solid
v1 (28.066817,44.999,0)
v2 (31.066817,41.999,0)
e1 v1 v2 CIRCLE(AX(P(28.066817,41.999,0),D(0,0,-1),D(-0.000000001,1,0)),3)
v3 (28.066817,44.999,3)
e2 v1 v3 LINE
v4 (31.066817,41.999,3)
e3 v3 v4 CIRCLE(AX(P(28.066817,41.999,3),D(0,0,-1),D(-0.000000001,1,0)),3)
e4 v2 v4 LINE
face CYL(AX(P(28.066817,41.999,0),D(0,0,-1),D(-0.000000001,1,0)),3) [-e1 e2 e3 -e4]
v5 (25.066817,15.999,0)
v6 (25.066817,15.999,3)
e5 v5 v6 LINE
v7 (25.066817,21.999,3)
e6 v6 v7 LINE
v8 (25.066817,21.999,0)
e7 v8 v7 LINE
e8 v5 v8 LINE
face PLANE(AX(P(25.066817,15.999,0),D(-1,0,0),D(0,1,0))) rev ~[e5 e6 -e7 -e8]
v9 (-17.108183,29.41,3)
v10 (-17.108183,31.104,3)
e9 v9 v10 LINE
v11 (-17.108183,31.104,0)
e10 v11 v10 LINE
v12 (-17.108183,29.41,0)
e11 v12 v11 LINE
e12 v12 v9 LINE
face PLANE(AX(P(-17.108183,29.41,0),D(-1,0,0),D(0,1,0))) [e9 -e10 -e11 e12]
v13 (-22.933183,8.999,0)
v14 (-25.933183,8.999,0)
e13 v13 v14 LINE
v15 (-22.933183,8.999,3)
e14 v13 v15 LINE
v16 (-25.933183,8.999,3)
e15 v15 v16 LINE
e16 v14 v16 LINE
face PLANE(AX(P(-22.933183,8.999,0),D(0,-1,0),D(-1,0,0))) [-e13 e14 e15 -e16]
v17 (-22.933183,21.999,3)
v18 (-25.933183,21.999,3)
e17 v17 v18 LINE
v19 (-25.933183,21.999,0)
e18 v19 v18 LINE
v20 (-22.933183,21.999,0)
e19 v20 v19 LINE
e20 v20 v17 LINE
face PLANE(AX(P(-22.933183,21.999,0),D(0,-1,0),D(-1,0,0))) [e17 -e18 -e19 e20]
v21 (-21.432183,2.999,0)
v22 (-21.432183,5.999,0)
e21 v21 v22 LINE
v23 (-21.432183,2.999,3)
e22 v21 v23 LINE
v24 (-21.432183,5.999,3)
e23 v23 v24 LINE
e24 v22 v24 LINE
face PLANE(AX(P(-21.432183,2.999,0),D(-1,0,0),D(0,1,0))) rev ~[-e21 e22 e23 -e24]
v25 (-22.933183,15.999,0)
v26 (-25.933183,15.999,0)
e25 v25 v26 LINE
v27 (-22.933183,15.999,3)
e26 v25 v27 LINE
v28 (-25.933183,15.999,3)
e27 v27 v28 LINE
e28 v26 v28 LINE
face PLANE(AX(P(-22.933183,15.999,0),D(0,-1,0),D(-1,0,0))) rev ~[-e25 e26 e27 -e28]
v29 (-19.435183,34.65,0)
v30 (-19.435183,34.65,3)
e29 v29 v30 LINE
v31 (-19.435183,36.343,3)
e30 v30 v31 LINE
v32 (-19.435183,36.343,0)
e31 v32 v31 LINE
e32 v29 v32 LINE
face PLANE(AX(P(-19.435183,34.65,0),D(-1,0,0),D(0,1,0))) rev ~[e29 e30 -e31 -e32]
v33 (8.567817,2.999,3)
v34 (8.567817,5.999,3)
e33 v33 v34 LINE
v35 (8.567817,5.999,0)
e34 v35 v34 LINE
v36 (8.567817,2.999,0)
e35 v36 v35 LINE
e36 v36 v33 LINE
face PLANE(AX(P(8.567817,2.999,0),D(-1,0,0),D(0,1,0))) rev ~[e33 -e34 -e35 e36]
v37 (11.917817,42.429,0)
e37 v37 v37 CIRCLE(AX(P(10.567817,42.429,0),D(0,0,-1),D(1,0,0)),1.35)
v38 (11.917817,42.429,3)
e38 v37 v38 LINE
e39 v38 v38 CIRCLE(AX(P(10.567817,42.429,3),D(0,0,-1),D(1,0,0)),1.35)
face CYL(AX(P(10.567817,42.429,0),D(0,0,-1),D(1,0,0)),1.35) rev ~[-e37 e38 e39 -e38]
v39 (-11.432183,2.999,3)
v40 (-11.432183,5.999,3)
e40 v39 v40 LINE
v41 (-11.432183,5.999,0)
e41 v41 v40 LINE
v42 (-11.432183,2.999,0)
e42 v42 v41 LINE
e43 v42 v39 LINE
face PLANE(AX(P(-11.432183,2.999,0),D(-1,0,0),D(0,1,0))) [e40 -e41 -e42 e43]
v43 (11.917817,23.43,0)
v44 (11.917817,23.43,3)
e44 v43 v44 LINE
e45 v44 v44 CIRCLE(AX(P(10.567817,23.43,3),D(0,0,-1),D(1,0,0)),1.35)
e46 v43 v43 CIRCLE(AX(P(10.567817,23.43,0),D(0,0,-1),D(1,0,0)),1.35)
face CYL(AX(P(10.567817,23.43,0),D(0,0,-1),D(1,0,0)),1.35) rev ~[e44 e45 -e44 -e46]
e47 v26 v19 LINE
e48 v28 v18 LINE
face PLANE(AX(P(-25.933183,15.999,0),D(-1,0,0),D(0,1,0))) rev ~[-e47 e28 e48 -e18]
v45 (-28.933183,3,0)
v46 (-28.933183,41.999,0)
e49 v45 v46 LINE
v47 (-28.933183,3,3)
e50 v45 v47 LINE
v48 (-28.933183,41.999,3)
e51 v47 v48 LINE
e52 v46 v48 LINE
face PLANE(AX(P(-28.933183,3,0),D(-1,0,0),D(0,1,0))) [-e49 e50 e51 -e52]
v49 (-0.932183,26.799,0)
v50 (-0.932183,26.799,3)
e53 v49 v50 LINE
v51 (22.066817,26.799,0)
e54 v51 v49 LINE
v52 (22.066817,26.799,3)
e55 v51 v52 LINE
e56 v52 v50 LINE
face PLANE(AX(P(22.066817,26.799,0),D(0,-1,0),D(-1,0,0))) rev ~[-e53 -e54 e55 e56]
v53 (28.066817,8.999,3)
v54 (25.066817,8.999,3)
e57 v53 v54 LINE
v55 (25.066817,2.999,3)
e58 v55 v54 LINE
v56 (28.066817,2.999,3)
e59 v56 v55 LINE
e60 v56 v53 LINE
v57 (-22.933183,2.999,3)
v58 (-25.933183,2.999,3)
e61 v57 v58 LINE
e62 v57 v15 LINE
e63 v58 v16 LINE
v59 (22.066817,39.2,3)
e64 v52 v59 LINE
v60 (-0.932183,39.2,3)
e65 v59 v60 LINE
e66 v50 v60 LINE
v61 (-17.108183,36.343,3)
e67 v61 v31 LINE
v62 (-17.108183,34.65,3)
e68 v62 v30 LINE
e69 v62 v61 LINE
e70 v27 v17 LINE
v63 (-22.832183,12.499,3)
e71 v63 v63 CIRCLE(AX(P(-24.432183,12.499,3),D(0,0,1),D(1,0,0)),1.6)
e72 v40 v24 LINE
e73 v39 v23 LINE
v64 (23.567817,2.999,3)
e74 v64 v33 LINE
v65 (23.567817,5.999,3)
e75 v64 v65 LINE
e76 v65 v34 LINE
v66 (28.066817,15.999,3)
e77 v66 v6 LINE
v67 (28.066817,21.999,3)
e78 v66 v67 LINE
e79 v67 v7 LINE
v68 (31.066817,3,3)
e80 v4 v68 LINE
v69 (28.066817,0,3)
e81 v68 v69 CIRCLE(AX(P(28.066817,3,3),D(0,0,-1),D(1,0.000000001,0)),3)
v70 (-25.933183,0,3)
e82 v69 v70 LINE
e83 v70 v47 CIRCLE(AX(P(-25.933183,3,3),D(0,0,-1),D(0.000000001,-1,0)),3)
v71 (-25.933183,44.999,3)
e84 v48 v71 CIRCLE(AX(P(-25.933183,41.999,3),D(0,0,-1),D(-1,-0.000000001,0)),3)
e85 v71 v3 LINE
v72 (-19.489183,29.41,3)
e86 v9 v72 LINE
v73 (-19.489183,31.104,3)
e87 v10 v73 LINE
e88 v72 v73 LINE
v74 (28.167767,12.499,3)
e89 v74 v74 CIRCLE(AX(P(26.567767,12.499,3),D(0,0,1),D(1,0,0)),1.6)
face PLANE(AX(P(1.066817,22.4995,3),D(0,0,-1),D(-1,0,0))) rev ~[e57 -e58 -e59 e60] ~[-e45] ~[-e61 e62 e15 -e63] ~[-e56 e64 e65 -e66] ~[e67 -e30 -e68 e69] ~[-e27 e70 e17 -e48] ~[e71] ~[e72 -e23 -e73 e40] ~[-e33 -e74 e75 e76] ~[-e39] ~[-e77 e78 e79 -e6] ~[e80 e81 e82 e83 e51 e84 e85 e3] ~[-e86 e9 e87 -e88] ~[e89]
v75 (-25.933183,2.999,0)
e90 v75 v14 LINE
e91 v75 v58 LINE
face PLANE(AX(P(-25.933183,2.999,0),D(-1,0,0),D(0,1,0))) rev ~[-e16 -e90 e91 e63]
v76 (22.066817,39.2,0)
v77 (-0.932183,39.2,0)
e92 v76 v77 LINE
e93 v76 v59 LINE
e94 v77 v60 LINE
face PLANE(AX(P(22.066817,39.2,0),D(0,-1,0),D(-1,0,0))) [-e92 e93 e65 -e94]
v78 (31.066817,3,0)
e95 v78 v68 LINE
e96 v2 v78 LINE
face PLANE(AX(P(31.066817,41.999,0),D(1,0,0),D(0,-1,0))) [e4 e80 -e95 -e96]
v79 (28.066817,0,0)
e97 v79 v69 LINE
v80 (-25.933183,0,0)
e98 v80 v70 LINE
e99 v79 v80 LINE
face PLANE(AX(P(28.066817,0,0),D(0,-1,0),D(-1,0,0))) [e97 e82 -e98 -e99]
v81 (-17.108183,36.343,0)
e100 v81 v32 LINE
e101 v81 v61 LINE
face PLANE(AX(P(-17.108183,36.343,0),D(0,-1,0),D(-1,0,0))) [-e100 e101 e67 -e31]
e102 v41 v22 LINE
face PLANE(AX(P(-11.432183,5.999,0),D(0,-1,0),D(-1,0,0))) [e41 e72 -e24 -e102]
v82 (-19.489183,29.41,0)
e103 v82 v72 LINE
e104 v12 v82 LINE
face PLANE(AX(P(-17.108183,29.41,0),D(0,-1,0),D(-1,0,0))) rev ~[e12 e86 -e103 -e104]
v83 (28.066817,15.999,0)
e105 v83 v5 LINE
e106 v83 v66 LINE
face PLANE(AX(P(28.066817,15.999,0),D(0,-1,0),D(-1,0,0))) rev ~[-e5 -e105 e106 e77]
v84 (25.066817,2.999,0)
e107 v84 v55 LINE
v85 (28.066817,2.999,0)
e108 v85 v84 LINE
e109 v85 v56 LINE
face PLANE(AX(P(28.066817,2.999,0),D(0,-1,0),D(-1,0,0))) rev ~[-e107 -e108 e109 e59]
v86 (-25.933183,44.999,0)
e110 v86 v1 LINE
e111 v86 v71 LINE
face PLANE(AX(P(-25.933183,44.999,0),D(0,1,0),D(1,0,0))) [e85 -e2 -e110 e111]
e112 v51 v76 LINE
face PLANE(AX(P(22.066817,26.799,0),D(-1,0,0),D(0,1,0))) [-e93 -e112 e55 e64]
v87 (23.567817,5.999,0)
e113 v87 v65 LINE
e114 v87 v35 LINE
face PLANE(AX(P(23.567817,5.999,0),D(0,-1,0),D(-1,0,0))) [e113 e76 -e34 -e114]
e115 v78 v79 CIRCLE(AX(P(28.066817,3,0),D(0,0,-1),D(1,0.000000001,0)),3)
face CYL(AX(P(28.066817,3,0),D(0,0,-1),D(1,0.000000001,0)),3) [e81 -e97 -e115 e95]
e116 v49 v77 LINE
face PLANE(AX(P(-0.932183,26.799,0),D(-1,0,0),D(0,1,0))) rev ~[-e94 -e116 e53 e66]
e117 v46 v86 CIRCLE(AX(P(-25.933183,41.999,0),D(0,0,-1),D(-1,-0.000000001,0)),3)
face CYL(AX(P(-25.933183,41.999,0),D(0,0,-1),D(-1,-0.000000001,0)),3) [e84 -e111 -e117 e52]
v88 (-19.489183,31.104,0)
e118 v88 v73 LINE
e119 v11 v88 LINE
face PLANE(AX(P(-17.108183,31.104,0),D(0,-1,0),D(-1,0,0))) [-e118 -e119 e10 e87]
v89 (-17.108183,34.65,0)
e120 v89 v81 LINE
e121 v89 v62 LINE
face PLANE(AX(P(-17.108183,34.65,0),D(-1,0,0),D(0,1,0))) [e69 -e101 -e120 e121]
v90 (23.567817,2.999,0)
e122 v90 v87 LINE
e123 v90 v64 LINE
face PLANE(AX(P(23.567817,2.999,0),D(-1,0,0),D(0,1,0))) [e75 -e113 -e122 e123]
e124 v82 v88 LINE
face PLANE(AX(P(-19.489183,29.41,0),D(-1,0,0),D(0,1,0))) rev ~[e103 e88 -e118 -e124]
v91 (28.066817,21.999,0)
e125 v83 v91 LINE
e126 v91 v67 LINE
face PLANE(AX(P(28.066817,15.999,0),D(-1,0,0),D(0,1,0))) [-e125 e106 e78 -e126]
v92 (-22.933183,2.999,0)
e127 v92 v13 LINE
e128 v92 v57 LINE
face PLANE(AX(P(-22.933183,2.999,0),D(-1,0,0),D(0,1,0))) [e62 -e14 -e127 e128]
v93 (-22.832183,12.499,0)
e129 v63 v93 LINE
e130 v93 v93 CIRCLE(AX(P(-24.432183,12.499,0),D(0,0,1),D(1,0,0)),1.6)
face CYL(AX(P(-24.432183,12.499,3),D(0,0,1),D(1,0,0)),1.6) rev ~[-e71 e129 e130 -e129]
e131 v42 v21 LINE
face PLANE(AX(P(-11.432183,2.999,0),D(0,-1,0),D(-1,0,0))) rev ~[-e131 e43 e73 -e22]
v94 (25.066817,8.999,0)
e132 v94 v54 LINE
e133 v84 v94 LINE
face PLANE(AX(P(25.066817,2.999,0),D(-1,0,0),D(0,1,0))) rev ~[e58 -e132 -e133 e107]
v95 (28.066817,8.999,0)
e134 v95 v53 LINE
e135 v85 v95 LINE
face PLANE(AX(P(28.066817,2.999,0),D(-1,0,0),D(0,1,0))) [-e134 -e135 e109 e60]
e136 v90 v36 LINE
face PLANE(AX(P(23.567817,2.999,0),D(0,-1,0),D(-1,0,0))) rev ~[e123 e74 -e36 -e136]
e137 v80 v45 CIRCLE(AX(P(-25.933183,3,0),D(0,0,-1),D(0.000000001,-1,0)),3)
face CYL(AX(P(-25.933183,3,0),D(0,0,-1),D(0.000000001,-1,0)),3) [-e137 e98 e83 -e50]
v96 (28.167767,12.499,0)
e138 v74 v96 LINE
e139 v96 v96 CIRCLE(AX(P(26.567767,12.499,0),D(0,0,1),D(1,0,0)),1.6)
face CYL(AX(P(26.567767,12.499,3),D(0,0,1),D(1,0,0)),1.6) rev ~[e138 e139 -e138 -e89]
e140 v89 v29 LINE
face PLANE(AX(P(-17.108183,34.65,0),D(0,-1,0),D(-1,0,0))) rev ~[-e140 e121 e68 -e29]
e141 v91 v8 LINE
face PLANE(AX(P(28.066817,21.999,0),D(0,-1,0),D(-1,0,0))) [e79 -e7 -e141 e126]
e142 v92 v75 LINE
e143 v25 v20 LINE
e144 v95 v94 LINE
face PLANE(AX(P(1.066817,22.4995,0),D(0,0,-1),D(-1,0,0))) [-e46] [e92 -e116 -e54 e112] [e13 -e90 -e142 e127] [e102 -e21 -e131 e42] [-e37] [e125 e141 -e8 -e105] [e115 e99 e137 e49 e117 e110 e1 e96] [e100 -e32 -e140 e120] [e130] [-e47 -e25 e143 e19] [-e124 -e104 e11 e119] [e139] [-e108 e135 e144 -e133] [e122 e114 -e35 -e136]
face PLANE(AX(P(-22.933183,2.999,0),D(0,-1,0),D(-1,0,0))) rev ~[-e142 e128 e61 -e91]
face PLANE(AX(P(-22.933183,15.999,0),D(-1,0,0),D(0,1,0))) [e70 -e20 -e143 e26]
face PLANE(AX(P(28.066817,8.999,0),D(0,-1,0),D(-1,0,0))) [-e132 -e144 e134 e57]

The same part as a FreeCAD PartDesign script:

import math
import FreeCAD as App
import Part
import Sketcher
from FreeCAD import Vector
Q = App.Units.Quantity


def add_polygon(sketch, points):
    """Adds a closed chain of lines whose ends are joined by coincident constraints."""
    first, n = sketch.GeometryCount, len(points)
    for a, b in zip(points, points[1:] + points[:1]):
        sketch.addGeometry(Part.LineSegment(App.Vector(*a, 0), App.Vector(*b, 0)), False)
    for i in range(n):
        sketch.addConstraint(Sketcher.Constraint("Coincident", first + i, 2, first + (i + 1) % n, 1))

doc = App.newDocument("Part")
body = doc.addObject("PartDesign::Body", "Body")

sketch1 = body.newObject("Sketcher::SketchObject", "Sketch")
sketch1.AttachmentSupport = (doc.getObject("XY_Plane"), [""])
sketch1.MapMode = "FlatFace"
sketch1.addGeometry(Part.LineSegment(Vector(-28.9, 3, 0), Vector(-28.9, 42, 0)), False)
sketch1.addGeometry(Part.ArcOfCircle(Part.Circle(Vector(-25.9, 42, 0), Vector(0, 0, 1), 3), math.radians(90), math.radians(180)), False)
sketch1.addGeometry(Part.LineSegment(Vector(-25.9, 45, 0), Vector(28.1, 45, 0)), False)
sketch1.addGeometry(Part.ArcOfCircle(Part.Circle(Vector(28.1, 42, 0), Vector(0, 0, 1), 3), math.radians(0), math.radians(90)), False)
sketch1.addGeometry(Part.LineSegment(Vector(31.1, 42, 0), Vector(31.1, 3, 0)), False)
sketch1.addGeometry(Part.ArcOfCircle(Part.Circle(Vector(28.1, 3, 0), Vector(0, 0, 1), 3), math.radians(-90), math.radians(0)), False)
sketch1.addGeometry(Part.LineSegment(Vector(28.1, 0, 0), Vector(-25.9, 0, 0)), False)
sketch1.addGeometry(Part.ArcOfCircle(Part.Circle(Vector(-25.9, 3, 0), Vector(0, 0, 1), 3), math.radians(180), math.radians(270)), False)
add_polygon(sketch1, [(25.1, 3), (28.1, 3), (28.1, 9), (25.1, 9)])
add_polygon(sketch1, [(8.6, 3), (23.6, 3), (23.6, 6), (8.6, 6)])
sketch1.addGeometry(Part.Circle(Vector(26.6, 12.5, 0), Vector(0, 0, 1), 1.4), False)
add_polygon(sketch1, [(25.1, 16), (28.1, 16), (28.1, 22), (25.1, 22)])
add_polygon(sketch1, [(-21.4, 3), (-11.4, 3), (-11.4, 6), (-21.4, 6)])
add_polygon(sketch1, [(-25.9, 3), (-22.9, 3), (-22.9, 9), (-25.9, 9)])
sketch1.addGeometry(Part.Circle(Vector(-24.4, 12.5, 0), Vector(0, 0, 1), 1.4), False)
add_polygon(sketch1, [(-25.9, 16), (-22.9, 16), (-22.9, 22), (-25.9, 22)])
sketch1.addGeometry(Part.Circle(Vector(10.6, 23.4, 0), Vector(0, 0, 1), 1.4), False)
add_polygon(sketch1, [(-0.9, 26.8), (22.1, 26.8), (22.1, 39.2), (-0.9, 39.2)])
sketch1.addGeometry(Part.Circle(Vector(10.6, 42.4, 0), Vector(0, 0, 1), 1.4), False)
add_polygon(sketch1, [(-19.5, 29.4), (-17.1, 29.4), (-17.1, 31.1), (-19.5, 31.1)])
add_polygon(sketch1, [(-19.4, 34.6), (-17.1, 34.6), (-17.1, 36.3), (-19.4, 36.3)])
sketch1.addConstraint(Sketcher.Constraint("Tangent", 0, 2, 1, 2))
sketch1.addConstraint(Sketcher.Constraint("Tangent", 1, 1, 2, 1))
sketch1.addConstraint(Sketcher.Constraint("Tangent", 2, 2, 3, 2))
sketch1.addConstraint(Sketcher.Constraint("Tangent", 3, 1, 4, 1))
sketch1.addConstraint(Sketcher.Constraint("Tangent", 4, 2, 5, 2))
sketch1.addConstraint(Sketcher.Constraint("Tangent", 5, 1, 6, 1))
sketch1.addConstraint(Sketcher.Constraint("Tangent", 6, 2, 7, 2))
sketch1.addConstraint(Sketcher.Constraint("Tangent", 7, 1, 0, 1))
sketch1.addConstraint(Sketcher.Constraint("Vertical", 0))
sketch1.addConstraint(Sketcher.Constraint("Horizontal", 2))
sketch1.addConstraint(Sketcher.Constraint("Vertical", 4))
sketch1.addConstraint(Sketcher.Constraint("Horizontal", 6))
sketch1.addConstraint(Sketcher.Constraint("Horizontal", 8))
sketch1.addConstraint(Sketcher.Constraint("Vertical", 9))
sketch1.addConstraint(Sketcher.Constraint("Horizontal", 10))
sketch1.addConstraint(Sketcher.Constraint("Vertical", 11))
sketch1.addConstraint(Sketcher.Constraint("Horizontal", 12))
sketch1.addConstraint(Sketcher.Constraint("Vertical", 13))
sketch1.addConstraint(Sketcher.Constraint("Horizontal", 14))
sketch1.addConstraint(Sketcher.Constraint("Vertical", 15))
sketch1.addConstraint(Sketcher.Constraint("Horizontal", 17))
sketch1.addConstraint(Sketcher.Constraint("Vertical", 18))
sketch1.addConstraint(Sketcher.Constraint("Horizontal", 19))
sketch1.addConstraint(Sketcher.Constraint("Vertical", 20))
sketch1.addConstraint(Sketcher.Constraint("Horizontal", 21))
sketch1.addConstraint(Sketcher.Constraint("Vertical", 22))
sketch1.addConstraint(Sketcher.Constraint("Horizontal", 23))
sketch1.addConstraint(Sketcher.Constraint("Vertical", 24))
sketch1.addConstraint(Sketcher.Constraint("Horizontal", 25))
sketch1.addConstraint(Sketcher.Constraint("Vertical", 26))
sketch1.addConstraint(Sketcher.Constraint("Horizontal", 27))
sketch1.addConstraint(Sketcher.Constraint("Vertical", 28))
sketch1.addConstraint(Sketcher.Constraint("Horizontal", 30))
sketch1.addConstraint(Sketcher.Constraint("Vertical", 31))
sketch1.addConstraint(Sketcher.Constraint("Horizontal", 32))
sketch1.addConstraint(Sketcher.Constraint("Vertical", 33))
sketch1.addConstraint(Sketcher.Constraint("Horizontal", 35))
sketch1.addConstraint(Sketcher.Constraint("Vertical", 36))
sketch1.addConstraint(Sketcher.Constraint("Horizontal", 37))
sketch1.addConstraint(Sketcher.Constraint("Vertical", 38))
sketch1.addConstraint(Sketcher.Constraint("Horizontal", 40))
sketch1.addConstraint(Sketcher.Constraint("Vertical", 41))
sketch1.addConstraint(Sketcher.Constraint("Horizontal", 42))
sketch1.addConstraint(Sketcher.Constraint("Vertical", 43))
sketch1.addConstraint(Sketcher.Constraint("Horizontal", 44))
sketch1.addConstraint(Sketcher.Constraint("Vertical", 45))
sketch1.addConstraint(Sketcher.Constraint("Horizontal", 46))
sketch1.addConstraint(Sketcher.Constraint("Vertical", 47))
sketch1.addConstraint(Sketcher.Constraint("Equal", 1, 3))
sketch1.addConstraint(Sketcher.Constraint("Equal", 3, 5))
sketch1.addConstraint(Sketcher.Constraint("Equal", 5, 7))
sketch1.addConstraint(Sketcher.Constraint("Equal", 16, 29))
sketch1.addConstraint(Sketcher.Constraint("Equal", 29, 34))
sketch1.addConstraint(Sketcher.Constraint("Equal", 34, 39))
sketch1.addConstraint(Sketcher.Constraint("PointOnObject", 5, 1, -1))
sketch1.addConstraint(Sketcher.Constraint("Horizontal", 16, 3, 29, 3))
sketch1.addConstraint(Sketcher.Constraint("Horizontal", 11, 2, 12, 2))
sketch1.addConstraint(Sketcher.Constraint("Horizontal", 15, 2, 21, 2))
sketch1.addConstraint(Sketcher.Constraint("Horizontal", 14, 2, 22, 2))
sketch1.addConstraint(Sketcher.Constraint("Horizontal", 24, 2, 25, 2))
sketch1.addConstraint(Sketcher.Constraint("Horizontal", 10, 2, 26, 2))
sketch1.addConstraint(Sketcher.Constraint("Horizontal", 20, 2, 30, 2))
sketch1.addConstraint(Sketcher.Constraint("Horizontal", 19, 2, 31, 2))
sketch1.addConstraint(Sketcher.Constraint("Vertical", 34, 3, 39, 3))
sketch1.addConstraint(Sketcher.Constraint("Vertical", 5, 1, 8, 2))
sketch1.addConstraint(Sketcher.Constraint("Vertical", 9, 2, 17, 2))
sketch1.addConstraint(Sketcher.Constraint("Vertical", 11, 2, 19, 2))
sketch1.addConstraint(Sketcher.Constraint("Vertical", 6, 2, 27, 2))
sketch1.addConstraint(Sketcher.Constraint("Vertical", 26, 2, 30, 2))
sketch1.addConstraint(Sketcher.Constraint("Vertical", 28, 2, 32, 2))
sketch1.addConstraint(Sketcher.Constraint("Vertical", 41, 2, 44, 2))
sketch1.addConstraint(Sketcher.Constraint("Equal", 19, 25))
sketch1.addConstraint(Sketcher.Constraint("Equal", 32, 13))
sketch1.addConstraint(Sketcher.Constraint("Equal", 11, 18))
sketch1.addConstraint(Sketcher.Constraint("Radius", 1, Q("3 mm")))
sketch1.addConstraint(Sketcher.Constraint("Diameter", 16, Q("2.7 mm")))
sketch1.addConstraint(Sketcher.Constraint("DistanceX", 2, 1, 2, 2, Q("54 mm")))
sketch1.addConstraint(Sketcher.Constraint("DistanceX", 8, 1, 8, 2, Q("3 mm")))
sketch1.addConstraint(Sketcher.Constraint("DistanceX", 12, 1, 12, 2, Q("15 mm")))
sketch1.addConstraint(Sketcher.Constraint("DistanceX", 21, 1, 21, 2, Q("10 mm")))
sketch1.addConstraint(Sketcher.Constraint("DistanceY", 9, 1, 9, 2, Q("6 mm")))
sketch1.addConstraint(Sketcher.Constraint("DistanceX", 29, 3, 34, 3, Q("35 mm")))
sketch1.addConstraint(Sketcher.Constraint("DistanceX", 14, 2, 34, 3, Q("2 mm")))
sketch1.addConstraint(Sketcher.Constraint("DistanceY", 9, 2, 17, 2, Q("7 mm")))
sketch1.addConstraint(Sketcher.Constraint("DistanceX", 29, 3, 21, 2, Q("13 mm")))
sketch1.addConstraint(Sketcher.Constraint("DistanceX", 35, 2, 19, 2, Q("3 mm")))
sketch1.addConstraint(Sketcher.Constraint("DistanceY", -1, 1, 36, 2, Q("39.2 mm")))
sketch1.addConstraint(Sketcher.Constraint("DistanceY", 16, 3, 3, 3, Q("29.5 mm")))
sketch1.addConstraint(Sketcher.Constraint("DistanceY", 8, 2, 16, 3, Q("9.5 mm")))
sketch1.addConstraint(Sketcher.Constraint("DistanceY", 19, 2, 35, 2, Q("4.8 mm")))
sketch1.addConstraint(Sketcher.Constraint("DistanceX", 37, 2, 39, 3, Q("11.5 mm")))
sketch1.addConstraint(Sketcher.Constraint("DistanceX", 35, 1, 35, 2, Q("22.999 mm")))
sketch1.addConstraint(Sketcher.Constraint("DistanceX", 40, 1, 40, 2, Q("2.381 mm")))
sketch1.addConstraint(Sketcher.Constraint("DistanceX", 44, 1, 44, 2, Q("2.327 mm")))
sketch1.addConstraint(Sketcher.Constraint("DistanceY", 0, 1, 0, 2, Q("38.999 mm")))
sketch1.addConstraint(Sketcher.Constraint("DistanceY", 41, 1, 41, 2, Q("1.694 mm")))
sketch1.addConstraint(Sketcher.Constraint("DistanceY", 45, 1, 45, 2, Q("1.693 mm")))
sketch1.addConstraint(Sketcher.Constraint("DistanceY", -1, 1, 34, 3, Q("23.43 mm")))
sketch1.addConstraint(Sketcher.Constraint("DistanceY", -1, 1, 40, 2, Q("29.41 mm")))
sketch1.addConstraint(Sketcher.Constraint("DistanceY", -1, 1, 44, 2, Q("34.65 mm")))
sketch1.addConstraint(Sketcher.Constraint("DistanceY", 3, 3, 39, 3, Q("0.43 mm")))
sketch1.addConstraint(Sketcher.Constraint("DistanceX", 31, 2, 40, 2, Q("5.825 mm")))
sketch1.addConstraint(Sketcher.Constraint("DistanceX", 16, 3, 5, 3, Q("1.499049 mm")))
sketch1.addConstraint(Sketcher.Constraint("DistanceX", 1, 3, -1, 1, Q("25.933183 mm")))
pad1 = body.newObject("PartDesign::Pad", "Pad")
pad1.Profile = sketch1
pad1.Length = 3

sketch2 = body.newObject("Sketcher::SketchObject", "Sketch001")
sketch2.AttachmentSupport = (doc.getObject("XY_Plane"), [""])
sketch2.MapMode = "FlatFace"
sketch2.AttachmentOffset = App.Placement(Vector(0, 0, 3), App.Rotation())
sketch2.addGeometry(Part.Circle(Vector(-24.4, 12.5, 0), Vector(0, 0, 1), 1.6), False)
sketch2.addGeometry(Part.Circle(Vector(26.6, 12.5, 0), Vector(0, 0, 1), 1.6), False)
sketch2.addConstraint(Sketcher.Constraint("Equal", 0, 1))
sketch2.addConstraint(Sketcher.Constraint("Horizontal", 0, 3, 1, 3))
sketch2.addConstraint(Sketcher.Constraint("Diameter", 0, Q("3.2 mm")))
sketch2.addConstraint(Sketcher.Constraint("DistanceY", -1, 1, 0, 3, Q("12.499 mm")))
sketch2.addConstraint(Sketcher.Constraint("DistanceX", 0, 3, 1, 3, Q("50.999951 mm")))
sketch2.addConstraint(Sketcher.Constraint("DistanceX", 0, 3, -1, 1, Q("24.432183 mm")))
pocket1 = body.newObject("PartDesign::Pocket", "Pocket")
pocket1.Profile = sketch2
pocket1.Type = "ThroughAll"

doc.recompute()
